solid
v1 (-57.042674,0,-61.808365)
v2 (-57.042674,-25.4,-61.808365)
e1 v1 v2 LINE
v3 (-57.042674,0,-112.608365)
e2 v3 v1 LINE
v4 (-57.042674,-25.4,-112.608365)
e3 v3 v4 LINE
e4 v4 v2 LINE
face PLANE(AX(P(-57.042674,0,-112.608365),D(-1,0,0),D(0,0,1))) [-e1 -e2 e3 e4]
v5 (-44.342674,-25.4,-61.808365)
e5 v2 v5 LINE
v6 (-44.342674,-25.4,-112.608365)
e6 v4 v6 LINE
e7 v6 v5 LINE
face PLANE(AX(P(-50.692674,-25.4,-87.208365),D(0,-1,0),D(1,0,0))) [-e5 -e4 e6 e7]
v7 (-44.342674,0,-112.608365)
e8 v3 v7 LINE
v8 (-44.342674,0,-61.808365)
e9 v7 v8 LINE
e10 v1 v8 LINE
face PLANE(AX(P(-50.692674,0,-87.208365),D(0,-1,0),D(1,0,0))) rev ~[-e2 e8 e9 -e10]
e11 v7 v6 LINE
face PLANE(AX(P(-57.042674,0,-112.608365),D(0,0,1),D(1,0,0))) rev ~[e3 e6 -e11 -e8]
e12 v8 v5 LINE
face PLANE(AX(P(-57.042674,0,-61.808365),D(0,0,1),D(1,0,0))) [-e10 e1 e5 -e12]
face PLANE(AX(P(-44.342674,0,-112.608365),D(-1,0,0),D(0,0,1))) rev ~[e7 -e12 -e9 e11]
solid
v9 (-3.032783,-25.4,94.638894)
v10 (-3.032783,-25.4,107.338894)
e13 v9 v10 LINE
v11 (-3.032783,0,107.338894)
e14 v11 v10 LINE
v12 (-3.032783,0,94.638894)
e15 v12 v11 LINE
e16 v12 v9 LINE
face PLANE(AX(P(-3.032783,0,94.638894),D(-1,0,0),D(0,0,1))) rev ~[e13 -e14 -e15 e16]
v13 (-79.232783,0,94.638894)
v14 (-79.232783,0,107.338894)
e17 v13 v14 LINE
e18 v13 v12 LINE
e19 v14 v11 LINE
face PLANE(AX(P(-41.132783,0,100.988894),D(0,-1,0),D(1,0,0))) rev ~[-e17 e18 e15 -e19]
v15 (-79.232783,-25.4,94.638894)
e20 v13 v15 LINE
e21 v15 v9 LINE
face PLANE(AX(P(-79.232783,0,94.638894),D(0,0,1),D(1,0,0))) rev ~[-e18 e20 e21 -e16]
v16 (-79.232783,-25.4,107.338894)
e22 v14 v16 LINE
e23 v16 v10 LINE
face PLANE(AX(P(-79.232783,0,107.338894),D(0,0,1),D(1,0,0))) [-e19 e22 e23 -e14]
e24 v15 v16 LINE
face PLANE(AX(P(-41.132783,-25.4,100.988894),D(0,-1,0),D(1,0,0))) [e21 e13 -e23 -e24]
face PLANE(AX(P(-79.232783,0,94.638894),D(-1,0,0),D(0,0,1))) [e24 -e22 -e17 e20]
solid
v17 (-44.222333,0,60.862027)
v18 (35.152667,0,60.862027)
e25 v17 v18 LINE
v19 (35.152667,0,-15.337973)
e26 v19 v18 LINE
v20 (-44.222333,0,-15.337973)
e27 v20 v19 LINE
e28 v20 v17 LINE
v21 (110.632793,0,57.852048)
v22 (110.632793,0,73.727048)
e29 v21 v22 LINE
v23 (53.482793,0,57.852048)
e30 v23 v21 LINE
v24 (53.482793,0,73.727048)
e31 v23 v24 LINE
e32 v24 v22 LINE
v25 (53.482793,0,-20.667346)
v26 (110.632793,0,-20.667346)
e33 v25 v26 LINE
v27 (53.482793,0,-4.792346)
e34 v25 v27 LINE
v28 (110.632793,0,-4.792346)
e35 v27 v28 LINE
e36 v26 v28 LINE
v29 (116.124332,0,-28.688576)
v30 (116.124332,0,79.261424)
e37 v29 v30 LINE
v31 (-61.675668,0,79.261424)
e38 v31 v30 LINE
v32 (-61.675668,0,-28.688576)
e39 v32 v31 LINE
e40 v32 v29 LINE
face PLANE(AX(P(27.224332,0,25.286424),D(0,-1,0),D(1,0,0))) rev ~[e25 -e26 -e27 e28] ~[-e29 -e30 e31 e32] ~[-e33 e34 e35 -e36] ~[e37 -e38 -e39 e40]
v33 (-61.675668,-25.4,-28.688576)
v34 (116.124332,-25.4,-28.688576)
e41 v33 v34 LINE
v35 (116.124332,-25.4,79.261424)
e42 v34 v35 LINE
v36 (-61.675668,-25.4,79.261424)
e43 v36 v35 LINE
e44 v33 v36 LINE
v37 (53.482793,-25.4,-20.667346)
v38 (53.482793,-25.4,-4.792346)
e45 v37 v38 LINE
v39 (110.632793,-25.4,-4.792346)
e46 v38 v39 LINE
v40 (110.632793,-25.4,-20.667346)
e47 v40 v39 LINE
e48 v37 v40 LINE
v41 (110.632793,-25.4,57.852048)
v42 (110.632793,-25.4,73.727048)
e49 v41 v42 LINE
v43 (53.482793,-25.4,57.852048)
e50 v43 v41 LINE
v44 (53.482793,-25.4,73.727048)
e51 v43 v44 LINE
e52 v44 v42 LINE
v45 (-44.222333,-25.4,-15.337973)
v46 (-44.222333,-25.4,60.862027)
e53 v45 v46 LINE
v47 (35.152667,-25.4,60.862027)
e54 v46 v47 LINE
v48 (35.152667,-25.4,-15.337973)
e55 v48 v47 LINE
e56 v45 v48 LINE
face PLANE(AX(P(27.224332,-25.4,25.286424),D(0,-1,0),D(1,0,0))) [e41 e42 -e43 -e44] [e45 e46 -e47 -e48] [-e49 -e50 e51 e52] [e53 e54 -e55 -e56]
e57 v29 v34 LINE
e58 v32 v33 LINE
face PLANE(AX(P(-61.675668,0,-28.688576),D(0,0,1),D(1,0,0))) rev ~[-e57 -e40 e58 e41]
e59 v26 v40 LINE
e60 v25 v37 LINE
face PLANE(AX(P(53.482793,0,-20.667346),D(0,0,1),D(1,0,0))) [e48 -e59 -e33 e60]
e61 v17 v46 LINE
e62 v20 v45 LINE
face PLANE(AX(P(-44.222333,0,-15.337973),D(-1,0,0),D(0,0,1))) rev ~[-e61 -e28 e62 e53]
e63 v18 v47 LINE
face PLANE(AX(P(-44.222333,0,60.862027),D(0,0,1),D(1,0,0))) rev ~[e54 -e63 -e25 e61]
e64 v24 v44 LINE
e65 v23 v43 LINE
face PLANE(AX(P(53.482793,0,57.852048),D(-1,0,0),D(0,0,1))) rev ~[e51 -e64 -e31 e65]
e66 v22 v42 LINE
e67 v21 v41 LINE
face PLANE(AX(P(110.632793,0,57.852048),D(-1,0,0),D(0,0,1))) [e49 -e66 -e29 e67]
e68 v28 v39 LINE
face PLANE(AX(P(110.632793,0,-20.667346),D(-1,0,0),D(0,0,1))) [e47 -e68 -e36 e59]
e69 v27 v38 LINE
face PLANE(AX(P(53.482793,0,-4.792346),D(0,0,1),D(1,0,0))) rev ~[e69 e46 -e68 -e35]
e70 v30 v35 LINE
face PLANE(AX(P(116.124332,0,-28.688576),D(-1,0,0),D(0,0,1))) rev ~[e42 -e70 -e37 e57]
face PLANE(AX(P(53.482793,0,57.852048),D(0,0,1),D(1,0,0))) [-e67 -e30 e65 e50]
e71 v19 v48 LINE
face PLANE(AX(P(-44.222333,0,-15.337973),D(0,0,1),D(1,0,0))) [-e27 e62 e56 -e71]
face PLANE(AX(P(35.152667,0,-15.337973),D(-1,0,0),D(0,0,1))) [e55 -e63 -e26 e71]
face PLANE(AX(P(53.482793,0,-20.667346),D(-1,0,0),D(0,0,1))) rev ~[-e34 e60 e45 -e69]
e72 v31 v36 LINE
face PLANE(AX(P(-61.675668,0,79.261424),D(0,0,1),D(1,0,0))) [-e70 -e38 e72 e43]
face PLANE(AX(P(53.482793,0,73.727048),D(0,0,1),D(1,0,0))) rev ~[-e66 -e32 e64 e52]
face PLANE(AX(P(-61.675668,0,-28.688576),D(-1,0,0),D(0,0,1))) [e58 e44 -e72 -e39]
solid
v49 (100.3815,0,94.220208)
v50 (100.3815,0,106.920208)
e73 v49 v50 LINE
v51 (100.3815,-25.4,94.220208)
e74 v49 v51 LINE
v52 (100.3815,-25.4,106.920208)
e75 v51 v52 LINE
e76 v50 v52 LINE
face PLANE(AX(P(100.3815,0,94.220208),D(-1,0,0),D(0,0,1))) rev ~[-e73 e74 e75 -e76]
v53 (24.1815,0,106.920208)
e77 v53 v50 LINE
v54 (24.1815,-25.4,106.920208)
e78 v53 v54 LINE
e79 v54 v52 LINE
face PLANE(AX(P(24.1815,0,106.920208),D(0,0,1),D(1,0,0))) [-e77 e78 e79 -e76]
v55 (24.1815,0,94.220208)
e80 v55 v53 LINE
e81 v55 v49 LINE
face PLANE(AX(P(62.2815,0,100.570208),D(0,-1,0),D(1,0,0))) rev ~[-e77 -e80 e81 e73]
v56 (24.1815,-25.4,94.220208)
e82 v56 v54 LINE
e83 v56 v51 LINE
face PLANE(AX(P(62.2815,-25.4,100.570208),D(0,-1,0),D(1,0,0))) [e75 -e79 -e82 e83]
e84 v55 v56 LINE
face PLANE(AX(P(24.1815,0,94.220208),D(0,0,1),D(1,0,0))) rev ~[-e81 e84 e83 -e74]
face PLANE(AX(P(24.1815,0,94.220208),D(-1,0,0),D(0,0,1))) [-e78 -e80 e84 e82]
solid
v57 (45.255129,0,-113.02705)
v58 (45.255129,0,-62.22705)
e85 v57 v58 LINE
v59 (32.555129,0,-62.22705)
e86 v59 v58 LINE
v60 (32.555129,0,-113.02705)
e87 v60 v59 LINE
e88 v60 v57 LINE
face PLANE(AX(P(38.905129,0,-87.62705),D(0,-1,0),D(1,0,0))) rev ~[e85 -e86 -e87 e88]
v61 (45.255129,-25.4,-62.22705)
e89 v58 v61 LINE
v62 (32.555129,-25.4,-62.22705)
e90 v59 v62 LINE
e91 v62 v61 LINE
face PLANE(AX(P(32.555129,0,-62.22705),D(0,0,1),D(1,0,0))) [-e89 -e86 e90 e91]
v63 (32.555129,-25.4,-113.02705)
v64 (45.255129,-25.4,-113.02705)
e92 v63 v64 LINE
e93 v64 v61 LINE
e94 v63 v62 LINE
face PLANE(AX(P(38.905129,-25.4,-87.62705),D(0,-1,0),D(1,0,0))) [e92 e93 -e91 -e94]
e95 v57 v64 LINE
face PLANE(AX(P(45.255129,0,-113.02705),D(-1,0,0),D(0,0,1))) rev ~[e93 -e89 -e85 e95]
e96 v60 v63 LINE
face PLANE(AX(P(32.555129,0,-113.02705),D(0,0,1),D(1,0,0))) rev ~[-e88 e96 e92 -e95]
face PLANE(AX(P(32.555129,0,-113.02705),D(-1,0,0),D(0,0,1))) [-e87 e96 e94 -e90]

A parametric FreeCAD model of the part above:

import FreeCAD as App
import Part
import Sketcher
from FreeCAD import Vector
Q = App.Units.Quantity

doc = App.newDocument("Part")
body = doc.addObject("PartDesign::Body", "Body")
body.AllowCompound = True

# Sketch on XZ plane
sketch1 = doc.addObject("Sketcher::SketchObject", "Sketch")
body.addObject(sketch1)
sketch1.AttachmentSupport = (doc.XZ_Plane, [""])
sketch1.MapMode = "FlatFace"
sketch1.addGeometry([
    Part.LineSegment(Vector(-79, 107, 0), Vector(-79, 95, 0)),  # 0
    Part.LineSegment(Vector(-79, 95, 0), Vector(-3, 95, 0)),  # 1
    Part.LineSegment(Vector(-3, 95, 0), Vector(-3, 107, 0)),  # 2
    Part.LineSegment(Vector(-3, 107, 0), Vector(-79, 107, 0)),  # 3
    Part.LineSegment(Vector(24, 107, 0), Vector(24, 94, 0)),  # 4
    Part.LineSegment(Vector(24, 94, 0), Vector(100, 94, 0)),  # 5
    Part.LineSegment(Vector(100, 94, 0), Vector(100, 107, 0)),  # 6
    Part.LineSegment(Vector(100, 107, 0), Vector(24, 107, 0)),  # 7
    Part.LineSegment(Vector(-57, -62, 0), Vector(-57, -113, 0)),  # 8
    Part.LineSegment(Vector(-57, -113, 0), Vector(-44, -113, 0)),  # 9
    Part.LineSegment(Vector(-44, -113, 0), Vector(-44, -62, 0)),  # 10
    Part.LineSegment(Vector(-44, -62, 0), Vector(-57, -62, 0)),  # 11
    Part.LineSegment(Vector(33, -62, 0), Vector(33, -113, 0)),  # 12
    Part.LineSegment(Vector(33, -113, 0), Vector(45, -113, 0)),  # 13
    Part.LineSegment(Vector(45, -113, 0), Vector(45, -62, 0)),  # 14
    Part.LineSegment(Vector(45, -62, 0), Vector(33, -62, 0)),  # 15
    Part.LineSegment(Vector(-62, 79, 0), Vector(-62, -29, 0)),  # 16
    Part.LineSegment(Vector(-62, -29, 0), Vector(116, -29, 0)),  # 17
    Part.LineSegment(Vector(116, -29, 0), Vector(116, 79, 0)),  # 18
    Part.LineSegment(Vector(116, 79, 0), Vector(-62, 79, 0)),  # 19
    Part.LineSegment(Vector(35, -15, 0), Vector(-44, -15, 0)),  # 20
    Part.LineSegment(Vector(-44, -15, 0), Vector(-44, 61, 0)),  # 21
    Part.LineSegment(Vector(-44, 61, 0), Vector(35, 61, 0)),  # 22
    Part.LineSegment(Vector(35, 61, 0), Vector(35, -15, 0)),  # 23
    Part.LineSegment(Vector(111, -21, 0), Vector(53, -21, 0)),  # 24
    Part.LineSegment(Vector(53, -21, 0), Vector(53, -5, 0)),  # 25
    Part.LineSegment(Vector(53, -5, 0), Vector(111, -5, 0)),  # 26
    Part.LineSegment(Vector(111, -5, 0), Vector(111, -21, 0)),  # 27
    Part.LineSegment(Vector(111, 58, 0), Vector(53, 58, 0)),  # 28
    Part.LineSegment(Vector(53, 58, 0), Vector(53, 74, 0)),  # 29
    Part.LineSegment(Vector(53, 74, 0), Vector(111, 74, 0)),  # 30
    Part.LineSegment(Vector(111, 74, 0), Vector(111, 58, 0)),  # 31
], False)
sketch1.addConstraint([
    Sketcher.Constraint("Coincident", 0, 2, 1, 1),
    Sketcher.Constraint("Coincident", 1, 2, 2, 1),
    Sketcher.Constraint("Coincident", 2, 2, 3, 1),
    Sketcher.Constraint("Coincident", 3, 2, 0, 1),
    Sketcher.Constraint("Coincident", 4, 2, 5, 1),
    Sketcher.Constraint("Coincident", 5, 2, 6, 1),
    Sketcher.Constraint("Coincident", 6, 2, 7, 1),
    Sketcher.Constraint("Coincident", 7, 2, 4, 1),
    Sketcher.Constraint("Coincident", 8, 2, 9, 1),
    Sketcher.Constraint("Coincident", 9, 2, 10, 1),
    Sketcher.Constraint("Coincident", 10, 2, 11, 1),
    Sketcher.Constraint("Coincident", 11, 2, 8, 1),
    Sketcher.Constraint("Coincident", 12, 2, 13, 1),
    Sketcher.Constraint("Coincident", 13, 2, 14, 1),
    Sketcher.Constraint("Coincident", 14, 2, 15, 1),
    Sketcher.Constraint("Coincident", 15, 2, 12, 1),
    Sketcher.Constraint("Coincident", 16, 2, 17, 1),
    Sketcher.Constraint("Coincident", 17, 2, 18, 1),
    Sketcher.Constraint("Coincident", 18, 2, 19, 1),
    Sketcher.Constraint("Coincident", 19, 2, 16, 1),
    Sketcher.Constraint("Coincident", 20, 2, 21, 1),
    Sketcher.Constraint("Coincident", 21, 2, 22, 1),
    Sketcher.Constraint("Coincident", 22, 2, 23, 1),
    Sketcher.Constraint("Coincident", 23, 2, 20, 1),
    Sketcher.Constraint("Coincident", 24, 2, 25, 1),
    Sketcher.Constraint("Coincident", 25, 2, 26, 1),
    Sketcher.Constraint("Coincident", 26, 2, 27, 1),
    Sketcher.Constraint("Coincident", 27, 2, 24, 1),
    Sketcher.Constraint("Coincident", 28, 2, 29, 1),
    Sketcher.Constraint("Coincident", 29, 2, 30, 1),
    Sketcher.Constraint("Coincident", 30, 2, 31, 1),
    Sketcher.Constraint("Coincident", 31, 2, 28, 1),
    Sketcher.Constraint("Vertical", 0),
    Sketcher.Constraint("Horizontal", 1),
    Sketcher.Constraint("Vertical", 2),
    Sketcher.Constraint("Horizontal", 3),
    Sketcher.Constraint("Vertical", 4),
    Sketcher.Constraint("Horizontal", 5),
    Sketcher.Constraint("Vertical", 6),
    Sketcher.Constraint("Horizontal", 7),
    Sketcher.Constraint("Vertical", 8),
    Sketcher.Constraint("Horizontal", 9),
    Sketcher.Constraint("Vertical", 10),
    Sketcher.Constraint("Horizontal", 11),
    Sketcher.Constraint("Vertical", 12),
    Sketcher.Constraint("Horizontal", 13),
    Sketcher.Constraint("Vertical", 14),
    Sketcher.Constraint("Horizontal", 15),
    Sketcher.Constraint("Vertical", 16),
    Sketcher.Constraint("Horizontal", 17),
    Sketcher.Constraint("Vertical", 18),
    Sketcher.Constraint("Horizontal", 19),
    Sketcher.Constraint("Horizontal", 20),
    Sketcher.Constraint("Vertical", 21),
    Sketcher.Constraint("Horizontal", 22),
    Sketcher.Constraint("Vertical", 23),
    Sketcher.Constraint("Horizontal", 24),
    Sketcher.Constraint("Vertical", 25),
    Sketcher.Constraint("Horizontal", 26),
    Sketcher.Constraint("Vertical", 27),
    Sketcher.Constraint("Horizontal", 28),
    Sketcher.Constraint("Vertical", 29),
    Sketcher.Constraint("Horizontal", 30),
    Sketcher.Constraint("Vertical", 31),
    Sketcher.Constraint("Vertical", 25, 2, 28, 2),
    Sketcher.Constraint("Vertical", 27, 2, 30, 2),
    Sketcher.Constraint("Equal", 3, 5),
    Sketcher.Constraint("Equal", 11, 13),
    Sketcher.Constraint("Equal", 15, 0),
    Sketcher.Constraint("Equal", 2, 4),
    Sketcher.Constraint("Equal", 10, 12),
    Sketcher.Constraint("Equal", 7, 21),
    Sketcher.Constraint("Equal", 27, 29),
    Sketcher.Constraint("DistanceX", 1, 1, 1, 2, Q("3 in")),
    Sketcher.Constraint("DistanceX", 17, 1, 17, 2, Q("7 in")),
    Sketcher.Constraint("DistanceY", 8, 2, 8, 1, Q("2 in")),
    Sketcher.Constraint("DistanceX", 9, 1, 9, 2, Q("0.5 in")),
    Sketcher.Constraint("DistanceX", 24, 2, 24, 1, Q("2.25 in")),
    Sketcher.Constraint("DistanceY", 16, 2, 16, 1, Q("4.25 in")),
    Sketcher.Constraint("DistanceX", 20, 2, 20, 1, Q("3.125 in")),
    Sketcher.Constraint("DistanceY", 25, 1, 25, 2, Q("0.625 in")),
    Sketcher.Constraint("DistanceY", 8, 2, -1, 1, Q("4.4334002 in")),
    Sketcher.Constraint("DistanceX", -1, 1, 4, 2, Q("24.1815 mm")),
    Sketcher.Constraint("DistanceY", -1, 1, 4, 2, Q("94.220208 mm")),
    Sketcher.Constraint("DistanceX", -1, 1, 12, 2, Q("32.555129 mm")),
    Sketcher.Constraint("DistanceY", 12, 2, -1, 1, Q("113.02705 mm")),
    Sketcher.Constraint("DistanceX", 16, 2, -1, 1, Q("61.675668 mm")),
    Sketcher.Constraint("DistanceY", -1, 1, 28, 2, Q("57.852048 mm")),
    Sketcher.Constraint("DistanceX", 0, 2, 8, 2, Q("22.190109 mm")),
    Sketcher.Constraint("DistanceY", 8, 2, 0, 2, Q("207.247259 mm")),
    Sketcher.Constraint("DistanceY", 11, 2, 16, 2, Q("33.119789 mm")),
    Sketcher.Constraint("DistanceX", 10, 2, 20, 2, Q("0.120341 mm")),
    Sketcher.Constraint("DistanceX", 20, 2, 15, 2, Q("76.777462 mm")),
    Sketcher.Constraint("DistanceY", 22, 2, 4, 2, Q("33.358181 mm")),
    Sketcher.Constraint("DistanceX", 24, 2, 17, 2, Q("62.641539 mm")),
    Sketcher.Constraint("DistanceY", 17, 2, 24, 2, Q("8.02123 mm")),
])
pad1 = doc.addObject("PartDesign::Pad", "Pad")
body.addObject(pad1)
pad1.Profile = sketch1
pad1.Length = Q("1 in")

doc.recompute()
